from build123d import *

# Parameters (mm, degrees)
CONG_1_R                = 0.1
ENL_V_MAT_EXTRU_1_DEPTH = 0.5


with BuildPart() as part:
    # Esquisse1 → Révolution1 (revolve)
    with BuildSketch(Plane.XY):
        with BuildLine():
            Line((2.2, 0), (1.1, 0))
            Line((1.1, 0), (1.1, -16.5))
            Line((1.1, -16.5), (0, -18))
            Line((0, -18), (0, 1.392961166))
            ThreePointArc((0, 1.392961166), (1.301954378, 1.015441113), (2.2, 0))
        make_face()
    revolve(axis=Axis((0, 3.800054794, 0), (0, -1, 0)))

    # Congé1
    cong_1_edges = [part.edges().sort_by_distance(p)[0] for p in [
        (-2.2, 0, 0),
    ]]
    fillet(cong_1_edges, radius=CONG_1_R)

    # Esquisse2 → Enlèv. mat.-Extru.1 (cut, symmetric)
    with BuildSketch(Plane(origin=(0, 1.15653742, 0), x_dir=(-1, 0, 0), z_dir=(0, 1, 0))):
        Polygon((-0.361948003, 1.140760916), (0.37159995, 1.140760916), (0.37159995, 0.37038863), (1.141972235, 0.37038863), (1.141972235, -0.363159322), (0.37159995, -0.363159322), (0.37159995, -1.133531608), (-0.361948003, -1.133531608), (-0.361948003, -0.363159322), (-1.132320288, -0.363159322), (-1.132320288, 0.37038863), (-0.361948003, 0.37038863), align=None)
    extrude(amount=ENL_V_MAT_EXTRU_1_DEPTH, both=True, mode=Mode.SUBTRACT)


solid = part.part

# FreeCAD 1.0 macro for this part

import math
import FreeCAD as App
import Part
import Sketcher

V = App.Vector
Q = App.Units.Quantity


def edges_at(feature, points):
    """Names of the edges that pass closest to the given points."""
    edges = feature.Shape.Edges
    near = lambda p: min(range(len(edges)), key=lambda i: edges[i].distToShape(Part.Vertex(*p))[0])
    return sorted({f"Edge{near(p) + 1}" for p in points})

doc = App.newDocument("Part")
body = doc.addObject("PartDesign::Body", "Body")

# Sketch on XY plane
sketch1 = body.newObject("Sketcher::SketchObject", "Sketch")
sketch1.AttachmentSupport = (doc.getObject("XY_Plane"), [""])
sketch1.MapMode = "FlatFace"
sketch1.addGeometry([
    Part.LineSegment(V(1.1, 0, 0), V(2.2, 0, 0)),  # 0
    Part.ArcOfCircle(Part.Circle(V(0, -1, 0), V(0, 0, 1), 2.4), math.radians(25), math.radians(90)),  # 1
    Part.LineSegment(V(0, 1.4, 0), V(0, -18, 0)),  # 2
    Part.LineSegment(V(0, -18, 0), V(1.1, -16.5, 0)),  # 3
    Part.LineSegment(V(1.1, -16.5, 0), V(1.1, 0, 0)),  # 4
], False)
sketch1.addConstraint([
    Sketcher.Constraint("Coincident", 0, 2, 1, 1),
    Sketcher.Constraint("Coincident", 1, 2, 2, 1),
    Sketcher.Constraint("Coincident", 2, 2, 3, 1),
    Sketcher.Constraint("Coincident", 3, 2, 4, 1),
    Sketcher.Constraint("Coincident", 4, 2, 0, 1),
    Sketcher.Constraint("Horizontal", 0),
    Sketcher.Constraint("Vertical", 2),
    Sketcher.Constraint("Vertical", 4),
    Sketcher.Constraint("PointOnObject", 1, 3, -2),
    Sketcher.Constraint("PointOnObject", 0, 2, -1),
    Sketcher.Constraint("PointOnObject", 1, 2, -2),
    Sketcher.Constraint("DistanceX", 0, 1, 0, 2, Q("1.1 mm")),
    Sketcher.Constraint("DistanceY", 4, 1, 4, 2, Q("16.5 mm")),
    Sketcher.Constraint("DistanceY", 2, 2, -1, 1, Q("18 mm")),
    Sketcher.Constraint("DistanceX", -1, 1, 0, 2, Q("2.2 mm")),
    Sketcher.Constraint("Radius", 1, Q("2.433787 mm")),
])
revolution = body.newObject("PartDesign::Revolution", "Revolution")
revolution.Profile = sketch1
revolution.ReferenceAxis = (sketch1, ["V_Axis"])
revolution.Angle = 360
doc.recompute()

fillet = body.newObject("PartDesign::Fillet", "Fillet")
fillet.Base = (revolution, edges_at(revolution, [(-2.2, 0, 0)]))
fillet.Radius = 0.1

# Sketch on XZ plane
sketch2 = body.newObject("Sketcher::SketchObject", "Sketch001")
sketch2.AttachmentSupport = (doc.getObject("XZ_Plane"), [""])
sketch2.MapMode = "FlatFace"
sketch2.AttachmentOffset = App.Placement(V(0, 0, -1.156537), App.Rotation())
sketch2.addGeometry([
    Part.LineSegment(V(-0.4, 1.1, 0), V(0.4, 1.1, 0)),  # 0
    Part.LineSegment(V(0.4, 1.1, 0), V(0.4, 0.4, 0)),  # 1
    Part.LineSegment(V(0.4, 0.4, 0), V(1.1, 0.4, 0)),  # 2
    Part.LineSegment(V(1.1, 0.4, 0), V(1.1, -0.4, 0)),  # 3
    Part.LineSegment(V(1.1, -0.4, 0), V(0.4, -0.4, 0)),  # 4
    Part.LineSegment(V(0.4, -0.4, 0), V(0.4, -1.1, 0)),  # 5
    Part.LineSegment(V(0.4, -1.1, 0), V(-0.4, -1.1, 0)),  # 6
    Part.LineSegment(V(-0.4, -1.1, 0), V(-0.4, -0.4, 0)),  # 7
    Part.LineSegment(V(-0.4, -0.4, 0), V(-1.1, -0.4, 0)),  # 8
    Part.LineSegment(V(-1.1, -0.4, 0), V(-1.1, 0.4, 0)),  # 9
    Part.LineSegment(V(-1.1, 0.4, 0), V(-0.4, 0.4, 0)),  # 10
    Part.LineSegment(V(-0.4, 0.4, 0), V(-0.4, 1.1, 0)),  # 11
], False)
sketch2.addConstraint([
    Sketcher.Constraint("Coincident", 0, 2, 1, 1),
    Sketcher.Constraint("Coincident", 1, 2, 2, 1),
    Sketcher.Constraint("Coincident", 2, 2, 3, 1),
    Sketcher.Constraint("Coincident", 3, 2, 4, 1),
    Sketcher.Constraint("Coincident", 4, 2, 5, 1),
    Sketcher.Constraint("Coincident", 5, 2, 6, 1),
    Sketcher.Constraint("Coincident", 6, 2, 7, 1),
    Sketcher.Constraint("Coincident", 7, 2, 8, 1),
    Sketcher.Constraint("Coincident", 8, 2, 9, 1),
    Sketcher.Constraint("Coincident", 9, 2, 10, 1),
    Sketcher.Constraint("Coincident", 10, 2, 11, 1),
    Sketcher.Constraint("Coincident", 11, 2, 0, 1),
    Sketcher.Constraint("Horizontal", 0),
    Sketcher.Constraint("Vertical", 1),
    Sketcher.Constraint("Horizontal", 2),
    Sketcher.Constraint("Vertical", 3),
    Sketcher.Constraint("Horizontal", 4),
    Sketcher.Constraint("Vertical", 5),
    Sketcher.Constraint("Horizontal", 6),
    Sketcher.Constraint("Vertical", 7),
    Sketcher.Constraint("Horizontal", 8),
    Sketcher.Constraint("Vertical", 9),
    Sketcher.Constraint("Horizontal", 10),
    Sketcher.Constraint("Vertical", 11),
    Sketcher.Constraint("Horizontal", 4, 2, 7, 2),
    Sketcher.Constraint("Horizontal", 2, 2, 9, 2),
    Sketcher.Constraint("Vertical", 1, 2, 4, 2),
    Sketcher.Constraint("Vertical", 7, 2, 10, 2),
    Sketcher.Constraint("Equal", 4, 8),
    Sketcher.Constraint("Equal", 10, 1),
    Sketcher.Constraint("Equal", 6, 3),
    Sketcher.Constraint("Equal", 1, 5),
    Sketcher.Constraint("DistanceX", 6, 2, -1, 1, Q("0.3716 mm")),
    Sketcher.Constraint("DistanceX", 0, 1, 0, 2, Q("0.733548 mm")),
    Sketcher.Constraint("DistanceX", 2, 1, 2, 2, Q("0.770372 mm")),
    Sketcher.Constraint("DistanceY", -1, 1, 0, 2, Q("1.140761 mm")),
])
pocket1 = body.newObject("PartDesign::Pocket", "Pocket")
pocket1.Profile = sketch2
pocket1.Length = 1
pocket1.Midplane = True

doc.recompute()
